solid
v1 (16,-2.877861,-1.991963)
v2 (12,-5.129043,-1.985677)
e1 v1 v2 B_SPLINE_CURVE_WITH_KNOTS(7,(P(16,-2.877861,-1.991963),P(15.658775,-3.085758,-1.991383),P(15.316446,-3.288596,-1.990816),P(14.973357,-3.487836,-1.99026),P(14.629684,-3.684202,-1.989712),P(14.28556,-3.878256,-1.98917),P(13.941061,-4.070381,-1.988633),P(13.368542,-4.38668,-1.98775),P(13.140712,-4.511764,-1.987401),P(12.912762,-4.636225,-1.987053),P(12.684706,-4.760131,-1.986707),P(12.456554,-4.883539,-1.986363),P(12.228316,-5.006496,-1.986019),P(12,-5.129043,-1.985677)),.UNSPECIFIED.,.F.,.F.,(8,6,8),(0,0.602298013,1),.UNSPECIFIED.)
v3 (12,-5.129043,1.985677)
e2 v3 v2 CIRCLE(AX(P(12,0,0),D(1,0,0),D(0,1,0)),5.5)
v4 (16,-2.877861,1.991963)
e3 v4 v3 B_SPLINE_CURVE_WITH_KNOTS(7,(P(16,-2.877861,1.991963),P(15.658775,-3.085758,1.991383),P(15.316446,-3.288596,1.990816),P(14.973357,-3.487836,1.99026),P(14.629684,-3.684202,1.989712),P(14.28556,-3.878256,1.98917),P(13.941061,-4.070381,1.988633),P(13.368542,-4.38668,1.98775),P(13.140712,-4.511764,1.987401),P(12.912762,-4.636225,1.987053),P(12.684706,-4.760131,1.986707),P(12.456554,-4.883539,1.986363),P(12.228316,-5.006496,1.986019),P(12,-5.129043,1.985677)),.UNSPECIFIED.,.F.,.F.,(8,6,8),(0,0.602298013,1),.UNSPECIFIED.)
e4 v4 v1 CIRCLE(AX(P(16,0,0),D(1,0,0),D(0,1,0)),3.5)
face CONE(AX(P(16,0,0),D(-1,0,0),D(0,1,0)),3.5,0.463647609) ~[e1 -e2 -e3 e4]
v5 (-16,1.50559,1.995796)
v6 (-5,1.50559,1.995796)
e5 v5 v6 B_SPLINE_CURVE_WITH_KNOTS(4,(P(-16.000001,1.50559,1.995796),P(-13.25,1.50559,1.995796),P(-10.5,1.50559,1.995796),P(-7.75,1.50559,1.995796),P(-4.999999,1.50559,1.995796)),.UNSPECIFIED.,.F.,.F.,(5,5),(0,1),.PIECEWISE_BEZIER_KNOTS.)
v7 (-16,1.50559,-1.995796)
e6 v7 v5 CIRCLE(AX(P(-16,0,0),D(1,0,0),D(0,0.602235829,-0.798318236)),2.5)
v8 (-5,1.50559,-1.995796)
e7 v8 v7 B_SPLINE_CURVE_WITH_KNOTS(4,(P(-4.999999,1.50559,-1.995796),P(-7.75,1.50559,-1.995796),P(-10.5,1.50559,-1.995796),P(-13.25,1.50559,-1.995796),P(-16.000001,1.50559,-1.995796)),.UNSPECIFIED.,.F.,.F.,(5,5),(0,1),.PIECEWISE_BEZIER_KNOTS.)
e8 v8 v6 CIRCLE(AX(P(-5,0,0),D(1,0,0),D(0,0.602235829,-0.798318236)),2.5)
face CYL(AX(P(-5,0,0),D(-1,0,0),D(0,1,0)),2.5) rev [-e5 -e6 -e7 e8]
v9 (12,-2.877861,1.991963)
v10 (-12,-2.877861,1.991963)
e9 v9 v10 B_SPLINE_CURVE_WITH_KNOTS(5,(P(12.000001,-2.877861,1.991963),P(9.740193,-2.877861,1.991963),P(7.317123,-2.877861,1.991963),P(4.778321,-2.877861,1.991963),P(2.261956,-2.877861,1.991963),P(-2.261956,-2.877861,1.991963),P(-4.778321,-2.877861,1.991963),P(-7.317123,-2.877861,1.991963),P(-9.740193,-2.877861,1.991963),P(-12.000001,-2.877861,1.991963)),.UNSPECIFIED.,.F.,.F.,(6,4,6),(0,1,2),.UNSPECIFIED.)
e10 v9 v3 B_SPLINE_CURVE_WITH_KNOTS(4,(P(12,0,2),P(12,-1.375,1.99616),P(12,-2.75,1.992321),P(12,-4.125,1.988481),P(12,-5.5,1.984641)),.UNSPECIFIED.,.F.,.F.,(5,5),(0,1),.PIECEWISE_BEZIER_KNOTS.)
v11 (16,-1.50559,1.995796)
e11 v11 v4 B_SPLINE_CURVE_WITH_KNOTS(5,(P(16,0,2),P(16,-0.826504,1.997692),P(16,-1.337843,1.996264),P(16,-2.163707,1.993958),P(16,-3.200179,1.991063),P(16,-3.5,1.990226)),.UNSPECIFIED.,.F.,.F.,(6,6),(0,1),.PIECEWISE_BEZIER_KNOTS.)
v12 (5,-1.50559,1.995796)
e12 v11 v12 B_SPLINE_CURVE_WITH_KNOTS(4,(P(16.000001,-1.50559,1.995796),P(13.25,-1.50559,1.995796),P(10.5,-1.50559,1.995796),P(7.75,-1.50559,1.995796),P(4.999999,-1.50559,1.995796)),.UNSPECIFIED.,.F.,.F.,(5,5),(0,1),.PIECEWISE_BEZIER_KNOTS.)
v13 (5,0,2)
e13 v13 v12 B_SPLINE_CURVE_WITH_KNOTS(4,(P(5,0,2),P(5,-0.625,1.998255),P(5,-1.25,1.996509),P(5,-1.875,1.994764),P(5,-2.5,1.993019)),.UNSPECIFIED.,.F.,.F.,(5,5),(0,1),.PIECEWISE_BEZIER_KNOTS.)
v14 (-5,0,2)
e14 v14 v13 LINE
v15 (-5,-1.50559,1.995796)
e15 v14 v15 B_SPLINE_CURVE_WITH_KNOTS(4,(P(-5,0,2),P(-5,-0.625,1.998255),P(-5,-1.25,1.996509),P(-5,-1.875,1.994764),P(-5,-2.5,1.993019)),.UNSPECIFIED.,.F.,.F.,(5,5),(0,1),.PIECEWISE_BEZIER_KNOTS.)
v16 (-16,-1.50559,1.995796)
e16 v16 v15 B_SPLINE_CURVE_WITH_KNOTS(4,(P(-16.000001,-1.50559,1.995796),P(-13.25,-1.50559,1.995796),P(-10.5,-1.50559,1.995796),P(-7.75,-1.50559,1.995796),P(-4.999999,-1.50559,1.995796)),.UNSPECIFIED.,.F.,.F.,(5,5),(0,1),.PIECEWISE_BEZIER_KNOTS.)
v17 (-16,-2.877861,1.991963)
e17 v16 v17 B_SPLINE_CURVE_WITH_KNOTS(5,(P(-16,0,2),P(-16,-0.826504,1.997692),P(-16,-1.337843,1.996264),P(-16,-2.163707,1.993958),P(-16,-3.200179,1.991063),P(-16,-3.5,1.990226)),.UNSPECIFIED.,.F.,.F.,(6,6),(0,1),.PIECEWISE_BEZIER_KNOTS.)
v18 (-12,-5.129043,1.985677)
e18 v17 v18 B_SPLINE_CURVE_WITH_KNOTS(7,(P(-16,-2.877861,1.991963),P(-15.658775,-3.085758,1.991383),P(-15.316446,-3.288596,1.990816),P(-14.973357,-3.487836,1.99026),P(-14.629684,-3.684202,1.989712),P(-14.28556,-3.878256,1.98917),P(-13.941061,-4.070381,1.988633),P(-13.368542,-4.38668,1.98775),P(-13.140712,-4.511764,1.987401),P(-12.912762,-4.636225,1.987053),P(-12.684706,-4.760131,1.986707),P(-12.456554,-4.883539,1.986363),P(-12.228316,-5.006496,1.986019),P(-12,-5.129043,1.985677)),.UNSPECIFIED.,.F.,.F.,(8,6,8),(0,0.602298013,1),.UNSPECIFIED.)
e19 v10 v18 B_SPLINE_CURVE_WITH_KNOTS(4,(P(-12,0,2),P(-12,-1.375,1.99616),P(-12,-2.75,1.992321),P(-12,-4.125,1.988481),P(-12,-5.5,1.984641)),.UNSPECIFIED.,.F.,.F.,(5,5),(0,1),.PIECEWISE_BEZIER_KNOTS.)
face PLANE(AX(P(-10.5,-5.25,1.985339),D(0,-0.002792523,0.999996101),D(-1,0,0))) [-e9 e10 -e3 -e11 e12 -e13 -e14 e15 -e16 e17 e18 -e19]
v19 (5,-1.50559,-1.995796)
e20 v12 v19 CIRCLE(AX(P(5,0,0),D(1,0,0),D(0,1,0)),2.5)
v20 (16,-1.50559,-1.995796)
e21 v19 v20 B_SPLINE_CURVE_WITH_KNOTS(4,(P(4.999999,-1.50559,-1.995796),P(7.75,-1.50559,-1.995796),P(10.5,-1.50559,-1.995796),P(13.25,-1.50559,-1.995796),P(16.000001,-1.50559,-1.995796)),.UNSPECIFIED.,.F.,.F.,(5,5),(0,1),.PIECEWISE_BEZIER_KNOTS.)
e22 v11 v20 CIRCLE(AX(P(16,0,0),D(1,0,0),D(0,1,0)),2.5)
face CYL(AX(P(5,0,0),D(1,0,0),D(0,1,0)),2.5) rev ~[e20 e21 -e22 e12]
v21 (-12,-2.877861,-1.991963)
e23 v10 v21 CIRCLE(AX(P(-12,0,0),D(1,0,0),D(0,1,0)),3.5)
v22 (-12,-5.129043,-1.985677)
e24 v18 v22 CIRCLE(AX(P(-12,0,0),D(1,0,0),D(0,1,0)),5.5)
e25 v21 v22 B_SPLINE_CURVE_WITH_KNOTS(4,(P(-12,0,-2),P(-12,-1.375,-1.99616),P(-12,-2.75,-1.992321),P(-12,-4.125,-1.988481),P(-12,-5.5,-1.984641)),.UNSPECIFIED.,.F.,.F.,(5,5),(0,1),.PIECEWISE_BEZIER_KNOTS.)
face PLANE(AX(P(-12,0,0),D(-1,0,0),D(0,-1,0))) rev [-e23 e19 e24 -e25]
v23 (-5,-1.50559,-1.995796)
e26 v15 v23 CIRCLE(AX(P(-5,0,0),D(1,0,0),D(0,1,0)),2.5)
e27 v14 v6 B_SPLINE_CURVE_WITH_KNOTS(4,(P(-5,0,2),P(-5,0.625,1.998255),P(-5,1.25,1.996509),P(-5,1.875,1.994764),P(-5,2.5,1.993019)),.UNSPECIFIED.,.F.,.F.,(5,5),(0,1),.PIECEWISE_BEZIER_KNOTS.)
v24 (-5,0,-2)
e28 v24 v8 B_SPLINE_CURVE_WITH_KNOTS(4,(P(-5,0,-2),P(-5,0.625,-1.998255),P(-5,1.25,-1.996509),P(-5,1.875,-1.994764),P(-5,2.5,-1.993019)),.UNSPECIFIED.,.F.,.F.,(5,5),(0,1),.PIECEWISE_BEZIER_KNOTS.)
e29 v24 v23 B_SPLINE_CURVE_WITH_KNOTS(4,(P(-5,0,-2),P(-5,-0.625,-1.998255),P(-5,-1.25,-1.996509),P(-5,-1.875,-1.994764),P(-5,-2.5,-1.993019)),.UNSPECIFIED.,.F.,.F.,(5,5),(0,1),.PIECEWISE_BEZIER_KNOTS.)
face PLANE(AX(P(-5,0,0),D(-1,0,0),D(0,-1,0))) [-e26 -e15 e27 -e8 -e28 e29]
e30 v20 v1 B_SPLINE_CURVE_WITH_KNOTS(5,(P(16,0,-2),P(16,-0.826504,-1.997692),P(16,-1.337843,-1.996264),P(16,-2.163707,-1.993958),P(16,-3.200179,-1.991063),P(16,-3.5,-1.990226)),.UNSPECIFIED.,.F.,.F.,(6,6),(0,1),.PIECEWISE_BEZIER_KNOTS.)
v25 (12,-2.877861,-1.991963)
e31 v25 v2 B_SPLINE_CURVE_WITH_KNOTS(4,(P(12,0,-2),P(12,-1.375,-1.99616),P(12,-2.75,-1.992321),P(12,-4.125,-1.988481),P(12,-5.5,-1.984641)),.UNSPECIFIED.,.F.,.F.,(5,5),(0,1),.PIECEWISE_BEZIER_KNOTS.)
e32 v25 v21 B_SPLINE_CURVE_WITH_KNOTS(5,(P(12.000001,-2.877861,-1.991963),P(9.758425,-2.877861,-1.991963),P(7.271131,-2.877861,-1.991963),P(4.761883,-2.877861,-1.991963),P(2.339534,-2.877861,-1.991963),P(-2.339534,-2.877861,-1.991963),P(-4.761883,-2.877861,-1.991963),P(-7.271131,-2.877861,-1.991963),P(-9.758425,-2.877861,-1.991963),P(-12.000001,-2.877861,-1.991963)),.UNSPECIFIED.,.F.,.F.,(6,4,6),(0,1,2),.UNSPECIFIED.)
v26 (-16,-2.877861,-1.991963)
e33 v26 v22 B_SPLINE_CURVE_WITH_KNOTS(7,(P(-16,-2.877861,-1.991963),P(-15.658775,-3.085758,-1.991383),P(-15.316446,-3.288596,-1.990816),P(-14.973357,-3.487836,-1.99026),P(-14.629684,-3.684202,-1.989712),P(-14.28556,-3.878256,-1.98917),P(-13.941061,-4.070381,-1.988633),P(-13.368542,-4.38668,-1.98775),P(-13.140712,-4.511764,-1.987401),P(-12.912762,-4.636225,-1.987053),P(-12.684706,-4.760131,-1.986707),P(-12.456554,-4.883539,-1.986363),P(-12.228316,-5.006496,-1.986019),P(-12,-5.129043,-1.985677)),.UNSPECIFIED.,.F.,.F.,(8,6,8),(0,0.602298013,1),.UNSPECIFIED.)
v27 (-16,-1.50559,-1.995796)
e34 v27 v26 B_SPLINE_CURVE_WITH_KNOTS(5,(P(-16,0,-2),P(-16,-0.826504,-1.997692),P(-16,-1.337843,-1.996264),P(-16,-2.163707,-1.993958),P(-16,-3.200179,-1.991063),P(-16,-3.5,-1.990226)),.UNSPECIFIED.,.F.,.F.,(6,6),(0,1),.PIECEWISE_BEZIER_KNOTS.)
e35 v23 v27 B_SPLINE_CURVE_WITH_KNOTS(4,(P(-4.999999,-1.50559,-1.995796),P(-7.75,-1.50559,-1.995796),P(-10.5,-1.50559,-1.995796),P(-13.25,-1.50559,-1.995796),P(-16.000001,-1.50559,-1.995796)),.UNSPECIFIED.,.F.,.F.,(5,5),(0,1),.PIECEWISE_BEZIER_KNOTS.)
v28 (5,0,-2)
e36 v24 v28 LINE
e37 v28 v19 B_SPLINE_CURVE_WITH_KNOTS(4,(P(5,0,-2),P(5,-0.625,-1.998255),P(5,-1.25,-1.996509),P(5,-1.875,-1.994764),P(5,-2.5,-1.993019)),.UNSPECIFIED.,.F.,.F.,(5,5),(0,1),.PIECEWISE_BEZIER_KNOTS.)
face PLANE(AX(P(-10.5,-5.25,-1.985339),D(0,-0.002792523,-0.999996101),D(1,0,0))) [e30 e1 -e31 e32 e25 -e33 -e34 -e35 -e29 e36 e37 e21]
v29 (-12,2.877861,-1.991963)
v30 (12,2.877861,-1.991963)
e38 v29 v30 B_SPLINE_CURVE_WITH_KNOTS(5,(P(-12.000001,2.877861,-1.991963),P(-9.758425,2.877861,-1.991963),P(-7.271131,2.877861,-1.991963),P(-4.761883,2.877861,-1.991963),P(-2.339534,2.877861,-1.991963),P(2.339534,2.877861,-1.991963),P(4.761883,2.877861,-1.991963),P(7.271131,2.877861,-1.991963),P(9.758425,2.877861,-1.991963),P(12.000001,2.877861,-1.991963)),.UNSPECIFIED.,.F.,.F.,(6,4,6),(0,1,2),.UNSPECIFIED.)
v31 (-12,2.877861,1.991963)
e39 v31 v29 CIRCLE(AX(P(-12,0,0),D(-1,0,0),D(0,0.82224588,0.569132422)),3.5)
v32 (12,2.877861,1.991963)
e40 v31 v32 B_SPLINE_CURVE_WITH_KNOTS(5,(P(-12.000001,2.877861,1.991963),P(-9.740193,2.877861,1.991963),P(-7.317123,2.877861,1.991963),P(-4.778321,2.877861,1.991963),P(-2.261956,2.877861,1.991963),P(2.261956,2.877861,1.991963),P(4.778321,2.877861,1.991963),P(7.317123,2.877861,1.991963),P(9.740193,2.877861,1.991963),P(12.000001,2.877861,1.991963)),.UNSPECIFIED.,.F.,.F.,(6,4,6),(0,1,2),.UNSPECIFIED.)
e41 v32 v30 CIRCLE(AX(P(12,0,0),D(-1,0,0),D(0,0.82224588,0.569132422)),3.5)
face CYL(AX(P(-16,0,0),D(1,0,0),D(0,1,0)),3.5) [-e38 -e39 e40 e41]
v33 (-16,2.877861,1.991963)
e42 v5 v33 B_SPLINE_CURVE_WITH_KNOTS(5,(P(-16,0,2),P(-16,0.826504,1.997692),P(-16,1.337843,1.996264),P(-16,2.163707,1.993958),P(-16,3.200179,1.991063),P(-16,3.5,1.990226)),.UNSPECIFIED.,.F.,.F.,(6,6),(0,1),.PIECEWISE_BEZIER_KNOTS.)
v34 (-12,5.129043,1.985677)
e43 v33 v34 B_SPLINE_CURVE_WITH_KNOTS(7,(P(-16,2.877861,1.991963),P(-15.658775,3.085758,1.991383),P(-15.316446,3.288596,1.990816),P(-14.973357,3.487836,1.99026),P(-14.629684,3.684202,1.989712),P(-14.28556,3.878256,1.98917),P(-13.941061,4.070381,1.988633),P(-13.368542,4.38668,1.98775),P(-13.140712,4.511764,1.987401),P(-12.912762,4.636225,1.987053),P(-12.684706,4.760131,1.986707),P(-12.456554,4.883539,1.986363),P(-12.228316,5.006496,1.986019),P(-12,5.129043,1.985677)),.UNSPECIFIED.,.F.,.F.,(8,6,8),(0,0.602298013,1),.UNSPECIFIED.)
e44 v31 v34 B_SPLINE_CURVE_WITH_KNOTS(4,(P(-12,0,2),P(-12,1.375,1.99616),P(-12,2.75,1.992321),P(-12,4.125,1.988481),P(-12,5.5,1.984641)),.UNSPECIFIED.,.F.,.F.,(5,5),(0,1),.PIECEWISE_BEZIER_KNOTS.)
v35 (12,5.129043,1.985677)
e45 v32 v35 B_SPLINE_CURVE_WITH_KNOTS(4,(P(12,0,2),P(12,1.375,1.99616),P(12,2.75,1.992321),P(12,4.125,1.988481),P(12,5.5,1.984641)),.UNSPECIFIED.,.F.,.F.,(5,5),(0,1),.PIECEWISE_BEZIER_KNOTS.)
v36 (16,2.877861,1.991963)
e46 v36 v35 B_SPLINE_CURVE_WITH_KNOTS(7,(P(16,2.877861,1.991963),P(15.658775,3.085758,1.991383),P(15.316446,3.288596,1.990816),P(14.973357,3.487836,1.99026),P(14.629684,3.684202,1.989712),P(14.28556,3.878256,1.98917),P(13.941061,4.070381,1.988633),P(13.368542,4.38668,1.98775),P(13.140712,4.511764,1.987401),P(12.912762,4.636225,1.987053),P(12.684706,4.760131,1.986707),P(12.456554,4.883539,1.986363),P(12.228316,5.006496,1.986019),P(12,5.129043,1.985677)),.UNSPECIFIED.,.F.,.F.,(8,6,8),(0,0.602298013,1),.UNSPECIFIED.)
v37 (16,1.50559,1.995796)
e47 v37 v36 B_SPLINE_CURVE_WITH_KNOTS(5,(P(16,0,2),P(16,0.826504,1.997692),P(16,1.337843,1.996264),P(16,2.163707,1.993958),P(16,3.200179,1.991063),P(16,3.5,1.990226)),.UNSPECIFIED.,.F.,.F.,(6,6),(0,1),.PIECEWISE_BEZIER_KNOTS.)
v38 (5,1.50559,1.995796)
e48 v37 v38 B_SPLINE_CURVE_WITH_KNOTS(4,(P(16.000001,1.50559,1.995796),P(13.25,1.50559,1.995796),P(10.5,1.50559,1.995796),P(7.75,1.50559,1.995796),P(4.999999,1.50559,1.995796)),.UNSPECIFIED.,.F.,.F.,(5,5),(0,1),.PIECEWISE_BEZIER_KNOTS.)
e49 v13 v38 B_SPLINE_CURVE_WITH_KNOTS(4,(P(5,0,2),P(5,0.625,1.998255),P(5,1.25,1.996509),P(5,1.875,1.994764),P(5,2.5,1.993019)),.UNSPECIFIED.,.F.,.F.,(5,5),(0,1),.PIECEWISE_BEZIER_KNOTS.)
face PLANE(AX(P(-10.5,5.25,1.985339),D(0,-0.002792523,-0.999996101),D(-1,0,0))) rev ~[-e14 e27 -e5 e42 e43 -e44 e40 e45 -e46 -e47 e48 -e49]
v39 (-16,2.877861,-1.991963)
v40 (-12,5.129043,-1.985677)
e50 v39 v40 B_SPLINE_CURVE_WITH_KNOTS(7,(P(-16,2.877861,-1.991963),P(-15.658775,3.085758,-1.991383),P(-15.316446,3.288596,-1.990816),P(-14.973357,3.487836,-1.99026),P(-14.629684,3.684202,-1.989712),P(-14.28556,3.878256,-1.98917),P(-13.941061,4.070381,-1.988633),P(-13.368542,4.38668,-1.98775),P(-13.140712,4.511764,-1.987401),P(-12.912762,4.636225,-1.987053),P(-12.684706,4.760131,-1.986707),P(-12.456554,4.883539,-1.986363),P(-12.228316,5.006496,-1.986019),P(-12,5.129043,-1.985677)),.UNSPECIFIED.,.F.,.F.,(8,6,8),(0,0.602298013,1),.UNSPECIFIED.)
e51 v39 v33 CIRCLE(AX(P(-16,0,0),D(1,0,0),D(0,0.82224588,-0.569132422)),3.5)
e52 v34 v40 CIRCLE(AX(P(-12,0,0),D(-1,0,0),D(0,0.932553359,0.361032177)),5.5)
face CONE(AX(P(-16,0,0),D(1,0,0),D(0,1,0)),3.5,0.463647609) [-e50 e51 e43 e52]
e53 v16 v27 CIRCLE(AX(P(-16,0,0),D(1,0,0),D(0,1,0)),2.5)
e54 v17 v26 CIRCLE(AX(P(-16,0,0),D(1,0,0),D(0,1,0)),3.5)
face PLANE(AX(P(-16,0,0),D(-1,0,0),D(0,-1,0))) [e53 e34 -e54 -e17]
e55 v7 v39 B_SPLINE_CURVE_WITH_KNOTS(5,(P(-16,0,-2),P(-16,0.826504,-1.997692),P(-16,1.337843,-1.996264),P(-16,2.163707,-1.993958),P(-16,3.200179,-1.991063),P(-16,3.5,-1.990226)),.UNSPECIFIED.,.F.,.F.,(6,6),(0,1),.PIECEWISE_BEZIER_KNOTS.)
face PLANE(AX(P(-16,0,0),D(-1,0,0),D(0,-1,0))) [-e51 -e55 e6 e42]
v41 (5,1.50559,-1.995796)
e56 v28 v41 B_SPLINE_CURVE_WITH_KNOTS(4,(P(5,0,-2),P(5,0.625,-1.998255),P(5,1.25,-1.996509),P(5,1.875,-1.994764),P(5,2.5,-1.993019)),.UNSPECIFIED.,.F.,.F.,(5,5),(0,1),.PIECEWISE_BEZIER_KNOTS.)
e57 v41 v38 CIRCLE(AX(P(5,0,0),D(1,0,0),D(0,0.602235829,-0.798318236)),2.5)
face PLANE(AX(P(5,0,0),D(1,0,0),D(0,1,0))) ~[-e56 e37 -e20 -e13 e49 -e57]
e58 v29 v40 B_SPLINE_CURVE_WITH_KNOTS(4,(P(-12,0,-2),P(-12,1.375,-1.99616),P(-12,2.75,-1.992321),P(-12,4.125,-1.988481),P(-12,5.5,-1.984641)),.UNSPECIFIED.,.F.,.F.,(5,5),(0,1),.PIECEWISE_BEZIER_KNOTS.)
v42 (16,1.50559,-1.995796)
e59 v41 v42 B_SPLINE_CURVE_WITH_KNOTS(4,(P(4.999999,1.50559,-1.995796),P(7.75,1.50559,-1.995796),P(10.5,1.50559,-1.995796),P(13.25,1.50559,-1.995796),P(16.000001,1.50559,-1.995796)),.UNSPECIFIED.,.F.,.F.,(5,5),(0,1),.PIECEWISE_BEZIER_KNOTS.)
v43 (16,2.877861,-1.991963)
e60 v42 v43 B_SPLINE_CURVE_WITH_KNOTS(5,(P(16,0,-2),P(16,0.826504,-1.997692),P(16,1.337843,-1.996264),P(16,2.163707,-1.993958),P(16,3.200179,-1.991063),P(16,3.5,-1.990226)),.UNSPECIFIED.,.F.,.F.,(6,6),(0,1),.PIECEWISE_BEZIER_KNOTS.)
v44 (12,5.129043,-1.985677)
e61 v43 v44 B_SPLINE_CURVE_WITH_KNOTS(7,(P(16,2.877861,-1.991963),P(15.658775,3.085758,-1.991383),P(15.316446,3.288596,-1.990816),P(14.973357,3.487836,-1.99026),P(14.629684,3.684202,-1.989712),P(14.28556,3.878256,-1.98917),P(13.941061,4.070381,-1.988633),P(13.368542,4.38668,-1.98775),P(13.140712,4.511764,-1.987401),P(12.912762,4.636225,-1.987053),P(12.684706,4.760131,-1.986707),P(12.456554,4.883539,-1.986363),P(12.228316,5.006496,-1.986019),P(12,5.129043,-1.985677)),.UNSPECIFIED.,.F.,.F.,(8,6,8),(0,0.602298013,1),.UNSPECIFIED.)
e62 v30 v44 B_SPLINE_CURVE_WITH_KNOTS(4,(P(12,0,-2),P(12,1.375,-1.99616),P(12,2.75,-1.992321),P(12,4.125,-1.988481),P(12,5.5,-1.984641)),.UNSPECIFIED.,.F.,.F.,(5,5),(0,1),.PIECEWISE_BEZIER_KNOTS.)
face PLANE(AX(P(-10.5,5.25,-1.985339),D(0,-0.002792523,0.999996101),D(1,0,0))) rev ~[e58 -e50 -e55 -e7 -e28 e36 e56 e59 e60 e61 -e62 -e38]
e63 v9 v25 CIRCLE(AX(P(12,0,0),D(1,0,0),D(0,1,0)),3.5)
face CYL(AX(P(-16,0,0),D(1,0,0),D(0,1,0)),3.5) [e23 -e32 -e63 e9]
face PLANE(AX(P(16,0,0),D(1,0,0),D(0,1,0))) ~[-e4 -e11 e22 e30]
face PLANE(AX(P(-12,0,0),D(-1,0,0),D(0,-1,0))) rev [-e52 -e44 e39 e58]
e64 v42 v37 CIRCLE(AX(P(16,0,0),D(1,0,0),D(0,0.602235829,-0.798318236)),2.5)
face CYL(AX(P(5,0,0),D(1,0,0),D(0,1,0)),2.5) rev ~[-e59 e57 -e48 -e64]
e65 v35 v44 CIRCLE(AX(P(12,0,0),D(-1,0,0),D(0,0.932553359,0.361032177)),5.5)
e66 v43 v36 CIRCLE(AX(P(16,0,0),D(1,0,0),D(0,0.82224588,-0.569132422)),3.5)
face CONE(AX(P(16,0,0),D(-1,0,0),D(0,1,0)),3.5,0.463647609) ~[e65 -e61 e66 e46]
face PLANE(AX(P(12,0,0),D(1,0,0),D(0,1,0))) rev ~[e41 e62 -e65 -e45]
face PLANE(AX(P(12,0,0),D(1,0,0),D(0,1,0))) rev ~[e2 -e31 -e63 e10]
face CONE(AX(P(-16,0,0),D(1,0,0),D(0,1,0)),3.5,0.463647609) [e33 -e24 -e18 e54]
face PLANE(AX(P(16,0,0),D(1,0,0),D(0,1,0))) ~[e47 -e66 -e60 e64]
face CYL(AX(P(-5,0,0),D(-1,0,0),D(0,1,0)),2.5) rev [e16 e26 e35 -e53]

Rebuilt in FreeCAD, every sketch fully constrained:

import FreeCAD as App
import Part
import Sketcher

V = App.Vector

doc = App.newDocument("Part")
body = doc.addObject("PartDesign::Body", "Body")

# Sketch on XY plane
sketch1 = body.newObject("Sketcher::SketchObject", "Sketch")
sketch1.AttachmentSupport = (doc.getObject("XY_Plane"), [""])
sketch1.MapMode = "FlatFace"
sketch1.addGeometry([
    Part.LineSegment(V(0, 3.5, 0), V(0, 0, 0)),  # 0
    Part.LineSegment(V(0, 0, 0), V(5, 0, 0)),  # 1
    Part.LineSegment(V(5, 0, 0), V(5, 2.5, 0)),  # 2
    Part.LineSegment(V(5, 2.5, 0), V(16, 2.5, 0)),  # 3
    Part.LineSegment(V(16, 2.5, 0), V(16, 3.5, 0)),  # 4
    Part.LineSegment(V(16, 3.5, 0), V(12, 5.5, 0)),  # 5
    Part.LineSegment(V(12, 5.5, 0), V(12, 3.5, 0)),  # 6
    Part.LineSegment(V(12, 3.5, 0), V(0, 3.5, 0)),  # 7
], False)
sketch1.addConstraint([
    Sketcher.Constraint("Coincident", 0, 2, 1, 1),
    Sketcher.Constraint("Coincident", 1, 2, 2, 1),
    Sketcher.Constraint("Coincident", 2, 2, 3, 1),
    Sketcher.Constraint("Coincident", 3, 2, 4, 1),
    Sketcher.Constraint("Coincident", 4, 2, 5, 1),
    Sketcher.Constraint("Coincident", 5, 2, 6, 1),
    Sketcher.Constraint("Coincident", 6, 2, 7, 1),
    Sketcher.Constraint("Coincident", 7, 2, 0, 1),
    Sketcher.Constraint("Vertical", 0),
    Sketcher.Constraint("Horizontal", 1),
    Sketcher.Constraint("Vertical", 2),
    Sketcher.Constraint("Horizontal", 3),
    Sketcher.Constraint("Vertical", 4),
    Sketcher.Constraint("Vertical", 6),
    Sketcher.Constraint("Horizontal", 7),
    Sketcher.Constraint("Coincident", 0, 2, -1, 1),
    Sketcher.Constraint("Horizontal", 4, 2, 6, 2),
    Sketcher.Constraint("DistanceX", 1, 1, 1, 2, 5.0),
    Sketcher.Constraint("DistanceX", 3, 1, 3, 2, 11.0),
    Sketcher.Constraint("DistanceX", 7, 2, 7, 1, 12.0),
    Sketcher.Constraint("DistanceY", 4, 1, 4, 2, 1.0),
    Sketcher.Constraint("DistanceY", 6, 2, 6, 1, 2.0),
    Sketcher.Constraint("DistanceY", 0, 2, 0, 1, 3.5),
])
revolution = body.newObject("PartDesign::Revolution", "Revolution")
revolution.Profile = sketch1
revolution.ReferenceAxis = (sketch1, ["H_Axis"])
revolution.Angle = 360

# Sketch on XZ plane
sketch2 = body.newObject("Sketcher::SketchObject", "Sketch001")
sketch2.AttachmentSupport = (doc.getObject("XZ_Plane"), [""])
sketch2.MapMode = "FlatFace"
sketch2.addGeometry([
    Part.LineSegment(V(0, 17, 0), V(0, 2, 0)),  # 0
    Part.LineSegment(V(0, 2, 0), V(21, 2, 0)),  # 1
    Part.LineSegment(V(21, 2, 0), V(21, 17, 0)),  # 2
    Part.LineSegment(V(21, 17, 0), V(0, 17, 0)),  # 3
    Part.LineSegment(V(0, -2, 0), V(0, -17, 0)),  # 4
    Part.LineSegment(V(0, -17, 0), V(21, -17, 0)),  # 5
    Part.LineSegment(V(21, -17, 0), V(21, -2, 0)),  # 6
    Part.LineSegment(V(21, -2, 0), V(0, -2, 0)),  # 7
], False)
sketch2.addConstraint([
    Sketcher.Constraint("Coincident", 0, 2, 1, 1),
    Sketcher.Constraint("Coincident", 1, 2, 2, 1),
    Sketcher.Constraint("Coincident", 2, 2, 3, 1),
    Sketcher.Constraint("Coincident", 3, 2, 0, 1),
    Sketcher.Constraint("Coincident", 4, 2, 5, 1),
    Sketcher.Constraint("Coincident", 5, 2, 6, 1),
    Sketcher.Constraint("Coincident", 6, 2, 7, 1),
    Sketcher.Constraint("Coincident", 7, 2, 4, 1),
    Sketcher.Constraint("Vertical", 0),
    Sketcher.Constraint("Horizontal", 1),
    Sketcher.Constraint("Vertical", 2),
    Sketcher.Constraint("Horizontal", 3),
    Sketcher.Constraint("Vertical", 4),
    Sketcher.Constraint("Horizontal", 5),
    Sketcher.Constraint("Vertical", 6),
    Sketcher.Constraint("Horizontal", 7),
    Sketcher.Constraint("Symmetric", 3, 2, 4, 2, -1, 1),
    Sketcher.Constraint("Symmetric", 1, 2, 6, 2, -1),
    Sketcher.Constraint("PointOnObject", 0, 2, -2),
    Sketcher.Constraint("DistanceX", 1, 1, 1, 2, 21.0),
    Sketcher.Constraint("DistanceY", 0, 2, 0, 1, 15.0),
    Sketcher.Constraint("DistanceY", -1, 1, 0, 2, 2.0),
])
pocket1 = body.newObject("PartDesign::Pocket", "Pocket")
pocket1.Profile = sketch2
pocket1.Length = 21
pocket1.Midplane = True
pocket1.TaperAngle = 0.16
body2 = doc.addObject("PartDesign::Body", "Body001")
doc.recompute()

body2.BaseFeature = body
doc.recompute()

mirroring = doc.addObject("Part::Mirroring", "Mirroring")
mirroring.Source = body
mirroring.Base = V(0, 0, 0)
mirroring.Normal = V(1, 0, 0)
body3 = doc.addObject("PartDesign::Body", "Body002")
body3.BaseFeature = mirroring
boolean = body2.newObject("PartDesign::Boolean", "Boolean")
boolean.Type = "Fuse"
boolean.addObjects([body3])
doc.recompute()
mirroring.Visibility = False

doc.recompute()
